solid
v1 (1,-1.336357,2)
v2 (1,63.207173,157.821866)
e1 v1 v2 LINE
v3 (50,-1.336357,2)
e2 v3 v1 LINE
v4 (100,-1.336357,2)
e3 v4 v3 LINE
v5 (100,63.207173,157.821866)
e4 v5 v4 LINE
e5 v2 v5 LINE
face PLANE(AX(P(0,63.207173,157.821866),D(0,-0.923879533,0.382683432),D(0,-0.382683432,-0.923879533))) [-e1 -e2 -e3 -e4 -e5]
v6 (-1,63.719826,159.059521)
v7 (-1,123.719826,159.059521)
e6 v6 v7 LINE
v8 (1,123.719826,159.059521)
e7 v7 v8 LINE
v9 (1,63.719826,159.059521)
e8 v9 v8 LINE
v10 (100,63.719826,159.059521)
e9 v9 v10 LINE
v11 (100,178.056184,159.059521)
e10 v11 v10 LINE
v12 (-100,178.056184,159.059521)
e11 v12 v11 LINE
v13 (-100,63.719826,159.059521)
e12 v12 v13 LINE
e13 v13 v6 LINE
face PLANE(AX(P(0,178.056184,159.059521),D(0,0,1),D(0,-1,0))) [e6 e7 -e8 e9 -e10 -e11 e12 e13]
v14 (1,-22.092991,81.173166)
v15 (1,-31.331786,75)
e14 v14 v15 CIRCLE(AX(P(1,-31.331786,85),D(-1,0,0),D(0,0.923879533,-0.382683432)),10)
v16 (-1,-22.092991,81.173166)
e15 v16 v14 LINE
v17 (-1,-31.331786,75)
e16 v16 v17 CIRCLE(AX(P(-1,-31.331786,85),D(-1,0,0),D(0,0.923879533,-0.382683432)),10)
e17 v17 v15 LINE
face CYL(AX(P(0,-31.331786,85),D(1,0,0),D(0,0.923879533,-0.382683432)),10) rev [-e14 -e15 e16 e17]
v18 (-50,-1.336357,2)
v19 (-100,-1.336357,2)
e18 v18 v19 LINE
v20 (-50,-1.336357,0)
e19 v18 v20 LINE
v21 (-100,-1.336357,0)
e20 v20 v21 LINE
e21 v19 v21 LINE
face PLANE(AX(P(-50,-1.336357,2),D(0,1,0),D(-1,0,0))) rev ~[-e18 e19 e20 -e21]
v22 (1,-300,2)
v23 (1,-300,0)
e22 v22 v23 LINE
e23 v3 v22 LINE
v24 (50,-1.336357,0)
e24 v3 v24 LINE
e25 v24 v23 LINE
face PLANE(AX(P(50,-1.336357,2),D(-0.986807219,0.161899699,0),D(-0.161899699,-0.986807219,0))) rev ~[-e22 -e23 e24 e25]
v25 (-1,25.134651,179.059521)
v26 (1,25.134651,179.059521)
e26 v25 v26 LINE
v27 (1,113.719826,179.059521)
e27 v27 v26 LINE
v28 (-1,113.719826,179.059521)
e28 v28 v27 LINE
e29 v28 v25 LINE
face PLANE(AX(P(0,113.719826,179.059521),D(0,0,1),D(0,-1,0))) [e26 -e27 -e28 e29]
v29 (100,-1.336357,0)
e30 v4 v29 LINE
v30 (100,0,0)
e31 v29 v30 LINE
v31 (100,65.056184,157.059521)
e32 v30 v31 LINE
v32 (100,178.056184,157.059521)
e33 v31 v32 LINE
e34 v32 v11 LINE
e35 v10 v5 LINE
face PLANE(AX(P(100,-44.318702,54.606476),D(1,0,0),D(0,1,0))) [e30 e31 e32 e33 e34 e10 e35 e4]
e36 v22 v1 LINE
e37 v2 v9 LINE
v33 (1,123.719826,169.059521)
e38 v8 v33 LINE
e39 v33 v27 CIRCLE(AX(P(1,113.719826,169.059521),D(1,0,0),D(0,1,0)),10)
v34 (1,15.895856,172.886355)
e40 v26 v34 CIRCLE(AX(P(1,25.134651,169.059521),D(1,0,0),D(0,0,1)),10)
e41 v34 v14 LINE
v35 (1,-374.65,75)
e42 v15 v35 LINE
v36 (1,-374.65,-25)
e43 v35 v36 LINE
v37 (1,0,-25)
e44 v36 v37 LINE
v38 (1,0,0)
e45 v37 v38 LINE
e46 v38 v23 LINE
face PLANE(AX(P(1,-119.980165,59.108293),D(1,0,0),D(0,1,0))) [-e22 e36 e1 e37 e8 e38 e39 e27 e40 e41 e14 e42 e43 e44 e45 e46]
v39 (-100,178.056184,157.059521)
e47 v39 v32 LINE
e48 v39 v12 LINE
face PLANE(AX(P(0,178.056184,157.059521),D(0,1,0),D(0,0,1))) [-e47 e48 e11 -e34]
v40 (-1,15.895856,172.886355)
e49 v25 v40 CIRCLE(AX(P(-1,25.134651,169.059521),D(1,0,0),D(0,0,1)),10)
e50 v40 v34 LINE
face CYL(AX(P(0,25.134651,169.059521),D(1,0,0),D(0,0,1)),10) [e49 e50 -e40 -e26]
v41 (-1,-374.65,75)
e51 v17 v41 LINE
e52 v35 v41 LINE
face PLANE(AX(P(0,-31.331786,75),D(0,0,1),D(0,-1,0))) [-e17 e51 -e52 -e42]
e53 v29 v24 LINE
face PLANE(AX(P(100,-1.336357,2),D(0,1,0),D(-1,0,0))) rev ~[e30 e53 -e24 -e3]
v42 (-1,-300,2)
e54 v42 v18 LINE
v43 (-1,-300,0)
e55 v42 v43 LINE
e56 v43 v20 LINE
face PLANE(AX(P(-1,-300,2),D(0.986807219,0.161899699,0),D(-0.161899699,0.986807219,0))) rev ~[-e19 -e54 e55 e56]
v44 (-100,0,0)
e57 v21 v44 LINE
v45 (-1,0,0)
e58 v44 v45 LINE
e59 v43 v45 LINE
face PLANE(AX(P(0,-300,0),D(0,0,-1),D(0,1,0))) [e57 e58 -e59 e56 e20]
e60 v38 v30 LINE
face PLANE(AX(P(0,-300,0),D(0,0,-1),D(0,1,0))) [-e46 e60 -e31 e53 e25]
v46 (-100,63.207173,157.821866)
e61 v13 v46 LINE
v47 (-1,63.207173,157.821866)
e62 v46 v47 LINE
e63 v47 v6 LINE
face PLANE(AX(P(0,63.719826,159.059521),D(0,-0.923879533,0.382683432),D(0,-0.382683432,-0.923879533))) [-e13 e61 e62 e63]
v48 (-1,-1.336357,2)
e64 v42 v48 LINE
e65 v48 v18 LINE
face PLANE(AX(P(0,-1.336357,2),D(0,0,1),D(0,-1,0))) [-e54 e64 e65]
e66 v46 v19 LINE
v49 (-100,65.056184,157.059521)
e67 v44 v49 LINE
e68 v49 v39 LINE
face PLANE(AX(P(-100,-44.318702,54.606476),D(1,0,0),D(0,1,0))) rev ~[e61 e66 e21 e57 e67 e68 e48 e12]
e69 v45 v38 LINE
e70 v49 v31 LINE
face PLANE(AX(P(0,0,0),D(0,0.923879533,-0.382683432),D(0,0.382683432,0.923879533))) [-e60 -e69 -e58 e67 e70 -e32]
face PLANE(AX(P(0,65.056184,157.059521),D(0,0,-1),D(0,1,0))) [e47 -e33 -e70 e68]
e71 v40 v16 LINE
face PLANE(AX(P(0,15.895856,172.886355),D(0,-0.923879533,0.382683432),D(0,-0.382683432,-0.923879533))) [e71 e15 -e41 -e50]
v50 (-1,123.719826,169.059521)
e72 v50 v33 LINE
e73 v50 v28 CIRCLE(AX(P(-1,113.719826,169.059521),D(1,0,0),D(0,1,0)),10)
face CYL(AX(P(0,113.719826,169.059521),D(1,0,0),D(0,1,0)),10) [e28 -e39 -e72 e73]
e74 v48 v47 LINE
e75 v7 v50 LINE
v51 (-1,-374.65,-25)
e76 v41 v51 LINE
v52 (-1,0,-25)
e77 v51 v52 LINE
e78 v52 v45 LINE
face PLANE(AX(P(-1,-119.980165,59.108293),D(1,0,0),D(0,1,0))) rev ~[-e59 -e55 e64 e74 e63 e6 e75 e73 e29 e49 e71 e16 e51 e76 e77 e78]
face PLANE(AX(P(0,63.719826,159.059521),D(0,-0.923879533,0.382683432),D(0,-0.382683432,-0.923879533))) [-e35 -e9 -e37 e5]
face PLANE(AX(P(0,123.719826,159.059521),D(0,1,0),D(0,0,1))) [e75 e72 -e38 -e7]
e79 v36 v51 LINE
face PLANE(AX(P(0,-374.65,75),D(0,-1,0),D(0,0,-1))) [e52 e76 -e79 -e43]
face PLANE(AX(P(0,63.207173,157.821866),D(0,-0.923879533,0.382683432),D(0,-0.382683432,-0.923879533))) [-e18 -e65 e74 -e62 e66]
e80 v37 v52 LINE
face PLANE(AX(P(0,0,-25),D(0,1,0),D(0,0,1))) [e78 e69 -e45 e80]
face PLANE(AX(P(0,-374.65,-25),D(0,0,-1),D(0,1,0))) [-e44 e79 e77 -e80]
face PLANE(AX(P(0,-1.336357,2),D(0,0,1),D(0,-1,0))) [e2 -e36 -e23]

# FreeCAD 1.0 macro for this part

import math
import FreeCAD as App
import Part
import Sketcher
from FreeCAD import Vector
Q = App.Units.Quantity

doc = App.newDocument("Part")
body = doc.addObject("PartDesign::Body", "Body")

sketch1 = doc.addObject("Sketcher::SketchObject", "Sketch")
body.addObject(sketch1)
sketch1.AttachmentSupport = (doc.YZ_Plane, [""])
sketch1.MapMode = "FlatFace"
sketch1.addGeometry([
    Part.LineSegment(Vector(-300, 0, 0), Vector(0, 0, 0)),
    Part.LineSegment(Vector(0, 0, 0), Vector(65.1, 157.1, 0)),
    Part.LineSegment(Vector(65.1, 157.1, 0), Vector(178.1, 157.1, 0)),
    Part.LineSegment(Vector(178.1, 157.1, 0), Vector(178.1, 159.1, 0)),
    Part.LineSegment(Vector(178.1, 159.1, 0), Vector(63.7, 159.1, 0)),
    Part.LineSegment(Vector(63.7, 159.1, 0), Vector(63.2, 157.8, 0)),
    Part.LineSegment(Vector(63.2, 157.8, 0), Vector(-1.3, 2, 0)),
    Part.LineSegment(Vector(-1.3, 2, 0), Vector(-300, 2, 0)),
    Part.LineSegment(Vector(-300, 2, 0), Vector(-300, 0, 0)),
], False)
sketch1.addConstraint([
    Sketcher.Constraint("Coincident", 0, 2, 1, 1),
    Sketcher.Constraint("Coincident", 1, 2, 2, 1),
    Sketcher.Constraint("Coincident", 2, 2, 3, 1),
    Sketcher.Constraint("Coincident", 3, 2, 4, 1),
    Sketcher.Constraint("Coincident", 4, 2, 5, 1),
    Sketcher.Constraint("Coincident", 5, 2, 6, 1),
    Sketcher.Constraint("Coincident", 6, 2, 7, 1),
    Sketcher.Constraint("Coincident", 7, 2, 8, 1),
    Sketcher.Constraint("Coincident", 8, 2, 0, 1),
    Sketcher.Constraint("Horizontal", 0),
    Sketcher.Constraint("Horizontal", 2),
    Sketcher.Constraint("Vertical", 3),
    Sketcher.Constraint("Horizontal", 4),
    Sketcher.Constraint("Horizontal", 7),
    Sketcher.Constraint("Vertical", 8),
    Sketcher.Constraint("Coincident", 0, 2, -1, 1),
    Sketcher.Constraint("Parallel", 1, 5),
    Sketcher.Constraint("Parallel", 5, 6),
    Sketcher.Constraint("Equal", 3, 8),
    Sketcher.Constraint("DistanceX", 0, 1, 0, 2, 300.0),
    Sketcher.Constraint("DistanceX", 2, 1, 2, 2, 113.0),
    Sketcher.Constraint("DistanceY", 3, 1, 3, 2, 2.0),
    Sketcher.Constraint("Distance", 1, 170.0),
    Sketcher.Constraint("Angle", 1, Q("67.5 deg")),
    Sketcher.Constraint("DistanceX", 4, 2, 4, 1, 114.336357),
    Sketcher.Constraint("DistanceX", 5, 2, 1, 2, 1.849011),
])
pad1 = doc.addObject("PartDesign::Pad", "Pad")
body.addObject(pad1)
pad1.Profile = sketch1
pad1.Length = 200
pad1.Midplane = True

sketch2 = doc.addObject("Sketcher::SketchObject", "Sketch001")
body.addObject(sketch2)
sketch2.AttachmentSupport = (doc.XY_Plane, [""])
sketch2.MapMode = "FlatFace"
sketch2.AttachmentOffset = App.Placement(Vector(0, 0, 2), App.Rotation())
sketch2.addGeometry([
    Part.LineSegment(Vector(-50, -1, 0), Vector(-100, -1, 0)),
    Part.LineSegment(Vector(-100, -1, 0), Vector(-100, -300, 0)),
    Part.LineSegment(Vector(-100, -300, 0), Vector(-1, -300, 0)),
    Part.LineSegment(Vector(-1, -300, 0), Vector(-50, -1, 0)),
    Part.LineSegment(Vector(100, -300, 0), Vector(100, -1, 0)),
    Part.LineSegment(Vector(100, -1, 0), Vector(50, -1, 0)),
    Part.LineSegment(Vector(50, -1, 0), Vector(1, -300, 0)),
    Part.LineSegment(Vector(1, -300, 0), Vector(100, -300, 0)),
], False)
sketch2.addConstraint([
    Sketcher.Constraint("Coincident", 0, 2, 1, 1),
    Sketcher.Constraint("Coincident", 1, 2, 2, 1),
    Sketcher.Constraint("Coincident", 2, 2, 3, 1),
    Sketcher.Constraint("Coincident", 3, 2, 0, 1),
    Sketcher.Constraint("Coincident", 4, 2, 5, 1),
    Sketcher.Constraint("Coincident", 5, 2, 6, 1),
    Sketcher.Constraint("Coincident", 6, 2, 7, 1),
    Sketcher.Constraint("Coincident", 7, 2, 4, 1),
    Sketcher.Constraint("Horizontal", 0),
    Sketcher.Constraint("Vertical", 1),
    Sketcher.Constraint("Horizontal", 2),
    Sketcher.Constraint("Vertical", 4),
    Sketcher.Constraint("Horizontal", 5),
    Sketcher.Constraint("Horizontal", 7),
    Sketcher.Constraint("Symmetric", 0, 2, 4, 2, -2),
    Sketcher.Constraint("Symmetric", 2, 2, 6, 2, -2),
    Sketcher.Constraint("Equal", 0, 5),
    Sketcher.Constraint("DistanceX", 0, 2, 0, 1, 50.0),
    Sketcher.Constraint("DistanceX", 2, 1, 2, 2, 99.0),
    Sketcher.Constraint("DistanceX", 0, 2, -1, 1, 100.0),
    Sketcher.Constraint("DistanceY", 1, 2, -1, 1, 300.0),
    Sketcher.Constraint("DistanceY", 1, 2, 1, 1, 298.663643),
])
pocket1 = doc.addObject("PartDesign::Pocket", "Pocket")
body.addObject(pocket1)
pocket1.Profile = sketch2
pocket1.Length = 2

sketch3 = doc.addObject("Sketcher::SketchObject", "Sketch002")
body.addObject(sketch3)
sketch3.AttachmentSupport = (doc.XY_Plane, [""])
sketch3.MapMode = "FlatFace"
sketch3.AttachmentOffset = App.Placement(Vector(0, 0, 2), App.Rotation())
sketch3.addGeometry([
    Part.LineSegment(Vector(-1, -1.3, 0), Vector(-1, -300, 0)),
    Part.LineSegment(Vector(-1, -300, 0), Vector(1, -300, 0)),
    Part.LineSegment(Vector(1, -300, 0), Vector(1, -1.3, 0)),
    Part.LineSegment(Vector(1, -1.3, 0), Vector(-1, -1.3, 0)),
], False)
sketch3.addConstraint([
    Sketcher.Constraint("Coincident", 0, 2, 1, 1),
    Sketcher.Constraint("Coincident", 1, 2, 2, 1),
    Sketcher.Constraint("Coincident", 2, 2, 3, 1),
    Sketcher.Constraint("Coincident", 3, 2, 0, 1),
    Sketcher.Constraint("Vertical", 0),
    Sketcher.Constraint("Horizontal", 1),
    Sketcher.Constraint("Vertical", 2),
    Sketcher.Constraint("Horizontal", 3),
    Sketcher.Constraint("DistanceX", 1, 1, 1, 2, 2.0),
    Sketcher.Constraint("DistanceX", 0, 2, -1, 1, 1.0),
    Sketcher.Constraint("DistanceY", 0, 2, -1, 1, 300.0),
    Sketcher.Constraint("DistanceY", 0, 2, 0, 1, 298.663643),
])
pocket2 = doc.addObject("PartDesign::Pocket", "Pocket001")
body.addObject(pocket2)
pocket2.Profile = sketch3
pocket2.Length = 2

sketch4 = doc.addObject("Sketcher::SketchObject", "Sketch003")
body.addObject(sketch4)
sketch4.AttachmentSupport = (doc.YZ_Plane, [""])
sketch4.MapMode = "FlatFace"
sketch4.addGeometry([
    Part.LineSegment(Vector(0, -25, 0), Vector(0, 0, 0)),
    Part.LineSegment(Vector(0, 0, 0), Vector(-1.3, 0, 0)),
    Part.LineSegment(Vector(-1.3, 0, 0), Vector(-1.3, 2, 0)),
    Part.LineSegment(Vector(-1.3, 2, 0), Vector(63.7, 159.1, 0)),
    Part.LineSegment(Vector(63.7, 159.1, 0), Vector(123.7, 159.1, 0)),
    Part.LineSegment(Vector(123.7, 159.1, 0), Vector(123.7, 169.1, 0)),
    Part.ArcOfCircle(Part.Circle(Vector(113.7, 169.1, 0), Vector(0, 0, 1), 10), math.radians(0), math.radians(90)),
    Part.LineSegment(Vector(113.7, 179.1, 0), Vector(25.1, 179.1, 0)),
    Part.ArcOfCircle(Part.Circle(Vector(25.1, 169.1, 0), Vector(0, 0, 1), 10), math.radians(90), math.radians(158)),
    Part.LineSegment(Vector(15.9, 172.9, 0), Vector(-22.1, 81.2, 0)),
    Part.ArcOfCircle(Part.Circle(Vector(-31.3, 85, 0), Vector(0, 0, 1), 10), math.radians(-90), math.radians(-23)),
    Part.LineSegment(Vector(-31.3, 75, 0), Vector(-374.6, 75, 0)),
    Part.LineSegment(Vector(-374.6, 75, 0), Vector(-374.6, -25, 0)),
    Part.LineSegment(Vector(-374.6, -25, 0), Vector(0, -25, 0)),
], False)
sketch4.addConstraint([
    Sketcher.Constraint("Coincident", 0, 2, 1, 1),
    Sketcher.Constraint("Coincident", 1, 2, 2, 1),
    Sketcher.Constraint("Coincident", 2, 2, 3, 1),
    Sketcher.Constraint("Coincident", 3, 2, 4, 1),
    Sketcher.Constraint("Coincident", 4, 2, 5, 1),
    Sketcher.Constraint("Tangent", 5, 2, 6, 1),
    Sketcher.Constraint("Tangent", 6, 2, 7, 1),
    Sketcher.Constraint("Tangent", 7, 2, 8, 1),
    Sketcher.Constraint("Tangent", 8, 2, 9, 1),
    Sketcher.Constraint("Tangent", 9, 2, 10, 2),
    Sketcher.Constraint("Tangent", 10, 1, 11, 1),
    Sketcher.Constraint("Coincident", 11, 2, 12, 1),
    Sketcher.Constraint("Coincident", 12, 2, 13, 1),
    Sketcher.Constraint("Coincident", 13, 2, 0, 1),
    Sketcher.Constraint("Vertical", 0),
    Sketcher.Constraint("Horizontal", 1),
    Sketcher.Constraint("Vertical", 2),
    Sketcher.Constraint("Horizontal", 4),
    Sketcher.Constraint("Vertical", 5),
    Sketcher.Constraint("Horizontal", 7),
    Sketcher.Constraint("Horizontal", 11),
    Sketcher.Constraint("Vertical", 12),
    Sketcher.Constraint("Horizontal", 13),
    Sketcher.Constraint("Coincident", 0, 2, -1, 1),
    Sketcher.Constraint("Equal", 6, 8),
    Sketcher.Constraint("Equal", 8, 10),
    Sketcher.Constraint("Radius", 6, 10.0),
    Sketcher.Constraint("DistanceX", 4, 1, 4, 2, 60.0),
    Sketcher.Constraint("DistanceY", 0, 1, 0, 2, 25.0),
    Sketcher.Constraint("DistanceY", 5, 1, 5, 2, 10.0),
    Sketcher.Constraint("DistanceY", 12, 2, 12, 1, 100.0),
    Sketcher.Constraint("Distance", 3, 170.0),
    Sketcher.Constraint("Angle", 9, Q("-112.5 deg")),
    Sketcher.Constraint("DistanceX", 13, 1, 13, 2, 374.65),
    Sketcher.Constraint("DistanceX", 1, 2, 1, 1, 1.321891),
    Sketcher.Constraint("DistanceY", 2, 1, 2, 2, 1.994009),
    Sketcher.Constraint("DistanceX", 9, 2, 2, 2, 20.7711),
    Sketcher.Constraint("Distance", 9, 99.269641),
])
pad2 = doc.addObject("PartDesign::Pad", "Pad001")
body.addObject(pad2)
pad2.Profile = sketch4
pad2.Length = 2
pad2.Midplane = True

doc.recompute()
